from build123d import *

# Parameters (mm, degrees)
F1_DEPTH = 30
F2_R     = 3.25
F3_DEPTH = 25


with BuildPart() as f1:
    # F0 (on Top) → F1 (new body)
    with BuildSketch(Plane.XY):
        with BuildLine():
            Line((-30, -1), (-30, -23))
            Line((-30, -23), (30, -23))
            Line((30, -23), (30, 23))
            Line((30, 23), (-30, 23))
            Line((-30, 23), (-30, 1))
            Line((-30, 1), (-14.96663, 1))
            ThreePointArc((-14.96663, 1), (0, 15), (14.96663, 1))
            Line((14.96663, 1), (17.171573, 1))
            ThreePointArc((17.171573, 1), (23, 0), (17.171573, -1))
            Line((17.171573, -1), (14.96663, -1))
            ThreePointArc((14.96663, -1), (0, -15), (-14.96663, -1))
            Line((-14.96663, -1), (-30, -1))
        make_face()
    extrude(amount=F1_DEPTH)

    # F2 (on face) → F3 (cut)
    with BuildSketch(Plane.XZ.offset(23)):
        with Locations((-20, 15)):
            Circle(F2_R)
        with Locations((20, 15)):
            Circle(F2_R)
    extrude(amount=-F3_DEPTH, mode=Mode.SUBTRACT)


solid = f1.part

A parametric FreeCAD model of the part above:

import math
import FreeCAD as App
import Part
import Sketcher
from FreeCAD import Vector
Q = App.Units.Quantity

doc = App.newDocument("Part")
body = doc.addObject("PartDesign::Body", "Body")

sketch1 = doc.addObject("Sketcher::SketchObject", "Sketch")
body.addObject(sketch1)
sketch1.AttachmentSupport = (doc.XY_Plane, [""])
sketch1.MapMode = "FlatFace"
sketch1.addGeometry(Part.LineSegment(Vector(-30, -1, 0), Vector(-30, -23, 0)), False)
sketch1.addGeometry(Part.LineSegment(Vector(-30, -23, 0), Vector(30, -23, 0)), False)
sketch1.addGeometry(Part.LineSegment(Vector(30, -23, 0), Vector(30, 23, 0)), False)
sketch1.addGeometry(Part.LineSegment(Vector(30, 23, 0), Vector(-30, 23, 0)), False)
sketch1.addGeometry(Part.LineSegment(Vector(-30, 23, 0), Vector(-30, 1, 0)), False)
sketch1.addGeometry(Part.LineSegment(Vector(-30, 1, 0), Vector(-15, 1, 0)), False)
sketch1.addGeometry(Part.ArcOfCircle(Part.Circle(Vector(0, 0, 0), Vector(0, 0, 1), 15), math.radians(4), math.radians(176)), False)
sketch1.addGeometry(Part.LineSegment(Vector(15, 1, 0), Vector(17.2, 1, 0)), False)
sketch1.addGeometry(Part.ArcOfCircle(Part.Circle(Vector(20, 0, 0), Vector(0, 0, 1), 3), math.radians(-161), math.radians(161)), False)
sketch1.addGeometry(Part.LineSegment(Vector(17.2, -1, 0), Vector(15, -1, 0)), False)
sketch1.addGeometry(Part.ArcOfCircle(Part.Circle(Vector(0, 0, 0), Vector(0, 0, 1), 15), math.radians(-176), math.radians(-4)), False)
sketch1.addGeometry(Part.LineSegment(Vector(-15, -1, 0), Vector(-30, -1, 0)), False)
sketch1.addConstraint(Sketcher.Constraint("Coincident", 0, 2, 1, 1))
sketch1.addConstraint(Sketcher.Constraint("Coincident", 1, 2, 2, 1))
sketch1.addConstraint(Sketcher.Constraint("Coincident", 2, 2, 3, 1))
sketch1.addConstraint(Sketcher.Constraint("Coincident", 3, 2, 4, 1))
sketch1.addConstraint(Sketcher.Constraint("Coincident", 4, 2, 5, 1))
sketch1.addConstraint(Sketcher.Constraint("Coincident", 5, 2, 6, 2))
sketch1.addConstraint(Sketcher.Constraint("Coincident", 6, 1, 7, 1))
sketch1.addConstraint(Sketcher.Constraint("Coincident", 7, 2, 8, 2))
sketch1.addConstraint(Sketcher.Constraint("Coincident", 8, 1, 9, 1))
sketch1.addConstraint(Sketcher.Constraint("Coincident", 9, 2, 10, 2))
sketch1.addConstraint(Sketcher.Constraint("Coincident", 10, 1, 11, 1))
sketch1.addConstraint(Sketcher.Constraint("Coincident", 11, 2, 0, 1))
sketch1.addConstraint(Sketcher.Constraint("Vertical", 0))
sketch1.addConstraint(Sketcher.Constraint("Horizontal", 1))
sketch1.addConstraint(Sketcher.Constraint("Vertical", 2))
sketch1.addConstraint(Sketcher.Constraint("Horizontal", 3))
sketch1.addConstraint(Sketcher.Constraint("Vertical", 4))
sketch1.addConstraint(Sketcher.Constraint("Horizontal", 5))
sketch1.addConstraint(Sketcher.Constraint("Horizontal", 7))
sketch1.addConstraint(Sketcher.Constraint("Horizontal", 9))
sketch1.addConstraint(Sketcher.Constraint("Horizontal", 11))
sketch1.addConstraint(Sketcher.Constraint("Coincident", 6, 3, -1, 1))
sketch1.addConstraint(Sketcher.Constraint("Coincident", 10, 3, -1, 1))
sketch1.addConstraint(Sketcher.Constraint("Equal", 6, 10))
sketch1.addConstraint(Sketcher.Constraint("Symmetric", 0, 2, 2, 2, -1, 1))
sketch1.addConstraint(Sketcher.Constraint("Symmetric", 7, 2, 8, 1, -1))
sketch1.addConstraint(Sketcher.Constraint("Symmetric", 4, 2, 11, 2, -1))
sketch1.addConstraint(Sketcher.Constraint("Horizontal", 5, 2, 6, 1))
sketch1.addConstraint(Sketcher.Constraint("Radius", 6, Q("15 mm")))
sketch1.addConstraint(Sketcher.Constraint("Radius", 8, Q("3 mm")))
sketch1.addConstraint(Sketcher.Constraint("DistanceX", 1, 1, 1, 2, Q("60 mm")))
sketch1.addConstraint(Sketcher.Constraint("DistanceY", 0, 2, 0, 1, Q("22 mm")))
sketch1.addConstraint(Sketcher.Constraint("DistanceY", 2, 1, 2, 2, Q("46 mm")))
sketch1.addConstraint(Sketcher.Constraint("DistanceX", -1, 1, 8, 3, Q("20 mm")))
pad1 = doc.addObject("PartDesign::Pad", "Pad")
body.addObject(pad1)
pad1.Profile = sketch1
pad1.Length = 30

sketch2 = doc.addObject("Sketcher::SketchObject", "Sketch001")
body.addObject(sketch2)
sketch2.AttachmentSupport = (doc.XZ_Plane, [""])
sketch2.MapMode = "FlatFace"
sketch2.AttachmentOffset = App.Placement(Vector(0, 0, 23), App.Rotation())
sketch2.addGeometry(Part.Circle(Vector(-20, 15, 0), Vector(0, 0, 1), 3.2), False)
sketch2.addGeometry(Part.Circle(Vector(20, 15, 0), Vector(0, 0, 1), 3.2), False)
sketch2.addConstraint(Sketcher.Constraint("Equal", 0, 1))
sketch2.addConstraint(Sketcher.Constraint("Symmetric", 0, 3, 1, 3, -2))
sketch2.addConstraint(Sketcher.Constraint("Diameter", 0, Q("6.5 mm")))
sketch2.addConstraint(Sketcher.Constraint("DistanceX", 0, 3, -1, 1, Q("20 mm")))
sketch2.addConstraint(Sketcher.Constraint("DistanceY", -1, 1, 0, 3, Q("15 mm")))
pocket1 = doc.addObject("PartDesign::Pocket", "Pocket")
body.addObject(pocket1)
pocket1.Profile = sketch2
pocket1.Length = 25

doc.recompute()
